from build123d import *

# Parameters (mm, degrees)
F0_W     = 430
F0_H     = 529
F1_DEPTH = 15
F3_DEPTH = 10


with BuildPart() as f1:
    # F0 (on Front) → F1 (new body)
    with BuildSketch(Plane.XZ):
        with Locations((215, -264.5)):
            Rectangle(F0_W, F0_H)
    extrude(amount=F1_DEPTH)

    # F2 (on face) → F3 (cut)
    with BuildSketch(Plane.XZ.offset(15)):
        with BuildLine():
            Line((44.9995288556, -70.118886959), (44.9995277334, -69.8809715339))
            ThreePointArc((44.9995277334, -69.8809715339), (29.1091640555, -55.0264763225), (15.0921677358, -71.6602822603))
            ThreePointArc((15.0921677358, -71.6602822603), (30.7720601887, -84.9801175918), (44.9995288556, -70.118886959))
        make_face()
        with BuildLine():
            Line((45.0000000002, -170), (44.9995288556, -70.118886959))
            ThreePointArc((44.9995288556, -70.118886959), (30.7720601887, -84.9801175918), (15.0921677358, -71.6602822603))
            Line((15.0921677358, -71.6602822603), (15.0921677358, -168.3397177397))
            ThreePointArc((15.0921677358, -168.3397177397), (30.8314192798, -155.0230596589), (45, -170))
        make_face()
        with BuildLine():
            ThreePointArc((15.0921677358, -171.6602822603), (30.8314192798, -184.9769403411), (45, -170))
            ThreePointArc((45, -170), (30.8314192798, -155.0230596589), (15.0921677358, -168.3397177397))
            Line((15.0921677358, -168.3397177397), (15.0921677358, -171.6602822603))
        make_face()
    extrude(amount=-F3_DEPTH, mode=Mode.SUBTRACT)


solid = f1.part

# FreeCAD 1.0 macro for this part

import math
import FreeCAD as App
import Part
import Sketcher
from FreeCAD import Vector
Q = App.Units.Quantity

doc = App.newDocument("Part")
body = doc.addObject("PartDesign::Body", "Body")

# Sketch on XZ plane
sketch1 = doc.addObject("Sketcher::SketchObject", "Sketch")
body.addObject(sketch1)
sketch1.AttachmentSupport = (doc.XZ_Plane, [""])
sketch1.MapMode = "FlatFace"
sketch1.addGeometry([
    Part.LineSegment(Vector(0, 0, 0), Vector(0, -529, 0)),
    Part.LineSegment(Vector(0, -529, 0), Vector(430, -529, 0)),
    Part.LineSegment(Vector(430, -529, 0), Vector(430, 0, 0)),
    Part.LineSegment(Vector(430, 0, 0), Vector(0, 0, 0)),
], False)
sketch1.addConstraint([
    Sketcher.Constraint("Coincident", 0, 2, 1, 1),
    Sketcher.Constraint("Coincident", 1, 2, 2, 1),
    Sketcher.Constraint("Coincident", 2, 2, 3, 1),
    Sketcher.Constraint("Coincident", 3, 2, 0, 1),
    Sketcher.Constraint("Vertical", 0),
    Sketcher.Constraint("Horizontal", 1),
    Sketcher.Constraint("Vertical", 2),
    Sketcher.Constraint("Horizontal", 3),
    Sketcher.Constraint("Coincident", 3, 2, -1, 1),
    Sketcher.Constraint("DistanceX", 1, 1, 1, 2, Q("430 mm")),
    Sketcher.Constraint("DistanceY", 0, 2, 0, 1, Q("529 mm")),
])
pad1 = doc.addObject("PartDesign::Pad", "Pad")
body.addObject(pad1)
pad1.Profile = sketch1
pad1.Length = 15

# Sketch on XZ plane
sketch2 = doc.addObject("Sketcher::SketchObject", "Sketch001")
body.addObject(sketch2)
sketch2.AttachmentSupport = (doc.XZ_Plane, [""])
sketch2.MapMode = "FlatFace"
sketch2.AttachmentOffset = App.Placement(Vector(0, 0, 15), App.Rotation())
sketch2.addGeometry([
    Part.LineSegment(Vector(45, -70.12, 0), Vector(45, -69.88, 0)),  # 0
    Part.ArcOfCircle(Part.Circle(Vector(30, -70, 0), Vector(0, 0, 1), 15), math.radians(0), math.radians(186)),  # 1
    Part.LineSegment(Vector(15.09, -71.66, 0), Vector(15.09, -171.66, 0)),  # 2
    Part.ArcOfCircle(Part.Circle(Vector(30, -170, 0), Vector(0, 0, 1), 15), math.radians(-174), math.radians(0)),  # 3
    Part.LineSegment(Vector(45, -170, 0), Vector(45, -70.12, 0)),  # 4
], False)
sketch2.addConstraint([
    Sketcher.Constraint("Coincident", 0, 2, 1, 1),
    Sketcher.Constraint("Coincident", 1, 2, 2, 1),
    Sketcher.Constraint("Coincident", 2, 2, 3, 1),
    Sketcher.Constraint("Coincident", 3, 2, 4, 1),
    Sketcher.Constraint("Coincident", 4, 2, 0, 1),
    Sketcher.Constraint("Vertical", 0),
    Sketcher.Constraint("Vertical", 2),
    Sketcher.Constraint("Equal", 1, 3),
    Sketcher.Constraint("Vertical", 1, 3, 3, 3),
    Sketcher.Constraint("Radius", 1, Q("15 mm")),
    Sketcher.Constraint("DistanceY", 2, 2, 2, 1, Q("100 mm")),
    Sketcher.Constraint("DistanceX", -1, 1, 1, 3, Q("30 mm")),
    Sketcher.Constraint("DistanceY", 1, 3, -1, 1, Q("70 mm")),
    Sketcher.Constraint("DistanceY", 3, 2, -1, 1, Q("170 mm")),
    Sketcher.Constraint("DistanceY", 0, 1, 0, 2, Q("0.237915 mm")),
    Sketcher.Constraint("DistanceY", 0, 2, -1, 1, Q("69.880972 mm")),
    Sketcher.Constraint("DistanceX", 1, 2, 0, 2, Q("29.90736 mm")),
])
pocket1 = doc.addObject("PartDesign::Pocket", "Pocket")
body.addObject(pocket1)
pocket1.Profile = sketch2
pocket1.Length = 10

doc.recompute()
